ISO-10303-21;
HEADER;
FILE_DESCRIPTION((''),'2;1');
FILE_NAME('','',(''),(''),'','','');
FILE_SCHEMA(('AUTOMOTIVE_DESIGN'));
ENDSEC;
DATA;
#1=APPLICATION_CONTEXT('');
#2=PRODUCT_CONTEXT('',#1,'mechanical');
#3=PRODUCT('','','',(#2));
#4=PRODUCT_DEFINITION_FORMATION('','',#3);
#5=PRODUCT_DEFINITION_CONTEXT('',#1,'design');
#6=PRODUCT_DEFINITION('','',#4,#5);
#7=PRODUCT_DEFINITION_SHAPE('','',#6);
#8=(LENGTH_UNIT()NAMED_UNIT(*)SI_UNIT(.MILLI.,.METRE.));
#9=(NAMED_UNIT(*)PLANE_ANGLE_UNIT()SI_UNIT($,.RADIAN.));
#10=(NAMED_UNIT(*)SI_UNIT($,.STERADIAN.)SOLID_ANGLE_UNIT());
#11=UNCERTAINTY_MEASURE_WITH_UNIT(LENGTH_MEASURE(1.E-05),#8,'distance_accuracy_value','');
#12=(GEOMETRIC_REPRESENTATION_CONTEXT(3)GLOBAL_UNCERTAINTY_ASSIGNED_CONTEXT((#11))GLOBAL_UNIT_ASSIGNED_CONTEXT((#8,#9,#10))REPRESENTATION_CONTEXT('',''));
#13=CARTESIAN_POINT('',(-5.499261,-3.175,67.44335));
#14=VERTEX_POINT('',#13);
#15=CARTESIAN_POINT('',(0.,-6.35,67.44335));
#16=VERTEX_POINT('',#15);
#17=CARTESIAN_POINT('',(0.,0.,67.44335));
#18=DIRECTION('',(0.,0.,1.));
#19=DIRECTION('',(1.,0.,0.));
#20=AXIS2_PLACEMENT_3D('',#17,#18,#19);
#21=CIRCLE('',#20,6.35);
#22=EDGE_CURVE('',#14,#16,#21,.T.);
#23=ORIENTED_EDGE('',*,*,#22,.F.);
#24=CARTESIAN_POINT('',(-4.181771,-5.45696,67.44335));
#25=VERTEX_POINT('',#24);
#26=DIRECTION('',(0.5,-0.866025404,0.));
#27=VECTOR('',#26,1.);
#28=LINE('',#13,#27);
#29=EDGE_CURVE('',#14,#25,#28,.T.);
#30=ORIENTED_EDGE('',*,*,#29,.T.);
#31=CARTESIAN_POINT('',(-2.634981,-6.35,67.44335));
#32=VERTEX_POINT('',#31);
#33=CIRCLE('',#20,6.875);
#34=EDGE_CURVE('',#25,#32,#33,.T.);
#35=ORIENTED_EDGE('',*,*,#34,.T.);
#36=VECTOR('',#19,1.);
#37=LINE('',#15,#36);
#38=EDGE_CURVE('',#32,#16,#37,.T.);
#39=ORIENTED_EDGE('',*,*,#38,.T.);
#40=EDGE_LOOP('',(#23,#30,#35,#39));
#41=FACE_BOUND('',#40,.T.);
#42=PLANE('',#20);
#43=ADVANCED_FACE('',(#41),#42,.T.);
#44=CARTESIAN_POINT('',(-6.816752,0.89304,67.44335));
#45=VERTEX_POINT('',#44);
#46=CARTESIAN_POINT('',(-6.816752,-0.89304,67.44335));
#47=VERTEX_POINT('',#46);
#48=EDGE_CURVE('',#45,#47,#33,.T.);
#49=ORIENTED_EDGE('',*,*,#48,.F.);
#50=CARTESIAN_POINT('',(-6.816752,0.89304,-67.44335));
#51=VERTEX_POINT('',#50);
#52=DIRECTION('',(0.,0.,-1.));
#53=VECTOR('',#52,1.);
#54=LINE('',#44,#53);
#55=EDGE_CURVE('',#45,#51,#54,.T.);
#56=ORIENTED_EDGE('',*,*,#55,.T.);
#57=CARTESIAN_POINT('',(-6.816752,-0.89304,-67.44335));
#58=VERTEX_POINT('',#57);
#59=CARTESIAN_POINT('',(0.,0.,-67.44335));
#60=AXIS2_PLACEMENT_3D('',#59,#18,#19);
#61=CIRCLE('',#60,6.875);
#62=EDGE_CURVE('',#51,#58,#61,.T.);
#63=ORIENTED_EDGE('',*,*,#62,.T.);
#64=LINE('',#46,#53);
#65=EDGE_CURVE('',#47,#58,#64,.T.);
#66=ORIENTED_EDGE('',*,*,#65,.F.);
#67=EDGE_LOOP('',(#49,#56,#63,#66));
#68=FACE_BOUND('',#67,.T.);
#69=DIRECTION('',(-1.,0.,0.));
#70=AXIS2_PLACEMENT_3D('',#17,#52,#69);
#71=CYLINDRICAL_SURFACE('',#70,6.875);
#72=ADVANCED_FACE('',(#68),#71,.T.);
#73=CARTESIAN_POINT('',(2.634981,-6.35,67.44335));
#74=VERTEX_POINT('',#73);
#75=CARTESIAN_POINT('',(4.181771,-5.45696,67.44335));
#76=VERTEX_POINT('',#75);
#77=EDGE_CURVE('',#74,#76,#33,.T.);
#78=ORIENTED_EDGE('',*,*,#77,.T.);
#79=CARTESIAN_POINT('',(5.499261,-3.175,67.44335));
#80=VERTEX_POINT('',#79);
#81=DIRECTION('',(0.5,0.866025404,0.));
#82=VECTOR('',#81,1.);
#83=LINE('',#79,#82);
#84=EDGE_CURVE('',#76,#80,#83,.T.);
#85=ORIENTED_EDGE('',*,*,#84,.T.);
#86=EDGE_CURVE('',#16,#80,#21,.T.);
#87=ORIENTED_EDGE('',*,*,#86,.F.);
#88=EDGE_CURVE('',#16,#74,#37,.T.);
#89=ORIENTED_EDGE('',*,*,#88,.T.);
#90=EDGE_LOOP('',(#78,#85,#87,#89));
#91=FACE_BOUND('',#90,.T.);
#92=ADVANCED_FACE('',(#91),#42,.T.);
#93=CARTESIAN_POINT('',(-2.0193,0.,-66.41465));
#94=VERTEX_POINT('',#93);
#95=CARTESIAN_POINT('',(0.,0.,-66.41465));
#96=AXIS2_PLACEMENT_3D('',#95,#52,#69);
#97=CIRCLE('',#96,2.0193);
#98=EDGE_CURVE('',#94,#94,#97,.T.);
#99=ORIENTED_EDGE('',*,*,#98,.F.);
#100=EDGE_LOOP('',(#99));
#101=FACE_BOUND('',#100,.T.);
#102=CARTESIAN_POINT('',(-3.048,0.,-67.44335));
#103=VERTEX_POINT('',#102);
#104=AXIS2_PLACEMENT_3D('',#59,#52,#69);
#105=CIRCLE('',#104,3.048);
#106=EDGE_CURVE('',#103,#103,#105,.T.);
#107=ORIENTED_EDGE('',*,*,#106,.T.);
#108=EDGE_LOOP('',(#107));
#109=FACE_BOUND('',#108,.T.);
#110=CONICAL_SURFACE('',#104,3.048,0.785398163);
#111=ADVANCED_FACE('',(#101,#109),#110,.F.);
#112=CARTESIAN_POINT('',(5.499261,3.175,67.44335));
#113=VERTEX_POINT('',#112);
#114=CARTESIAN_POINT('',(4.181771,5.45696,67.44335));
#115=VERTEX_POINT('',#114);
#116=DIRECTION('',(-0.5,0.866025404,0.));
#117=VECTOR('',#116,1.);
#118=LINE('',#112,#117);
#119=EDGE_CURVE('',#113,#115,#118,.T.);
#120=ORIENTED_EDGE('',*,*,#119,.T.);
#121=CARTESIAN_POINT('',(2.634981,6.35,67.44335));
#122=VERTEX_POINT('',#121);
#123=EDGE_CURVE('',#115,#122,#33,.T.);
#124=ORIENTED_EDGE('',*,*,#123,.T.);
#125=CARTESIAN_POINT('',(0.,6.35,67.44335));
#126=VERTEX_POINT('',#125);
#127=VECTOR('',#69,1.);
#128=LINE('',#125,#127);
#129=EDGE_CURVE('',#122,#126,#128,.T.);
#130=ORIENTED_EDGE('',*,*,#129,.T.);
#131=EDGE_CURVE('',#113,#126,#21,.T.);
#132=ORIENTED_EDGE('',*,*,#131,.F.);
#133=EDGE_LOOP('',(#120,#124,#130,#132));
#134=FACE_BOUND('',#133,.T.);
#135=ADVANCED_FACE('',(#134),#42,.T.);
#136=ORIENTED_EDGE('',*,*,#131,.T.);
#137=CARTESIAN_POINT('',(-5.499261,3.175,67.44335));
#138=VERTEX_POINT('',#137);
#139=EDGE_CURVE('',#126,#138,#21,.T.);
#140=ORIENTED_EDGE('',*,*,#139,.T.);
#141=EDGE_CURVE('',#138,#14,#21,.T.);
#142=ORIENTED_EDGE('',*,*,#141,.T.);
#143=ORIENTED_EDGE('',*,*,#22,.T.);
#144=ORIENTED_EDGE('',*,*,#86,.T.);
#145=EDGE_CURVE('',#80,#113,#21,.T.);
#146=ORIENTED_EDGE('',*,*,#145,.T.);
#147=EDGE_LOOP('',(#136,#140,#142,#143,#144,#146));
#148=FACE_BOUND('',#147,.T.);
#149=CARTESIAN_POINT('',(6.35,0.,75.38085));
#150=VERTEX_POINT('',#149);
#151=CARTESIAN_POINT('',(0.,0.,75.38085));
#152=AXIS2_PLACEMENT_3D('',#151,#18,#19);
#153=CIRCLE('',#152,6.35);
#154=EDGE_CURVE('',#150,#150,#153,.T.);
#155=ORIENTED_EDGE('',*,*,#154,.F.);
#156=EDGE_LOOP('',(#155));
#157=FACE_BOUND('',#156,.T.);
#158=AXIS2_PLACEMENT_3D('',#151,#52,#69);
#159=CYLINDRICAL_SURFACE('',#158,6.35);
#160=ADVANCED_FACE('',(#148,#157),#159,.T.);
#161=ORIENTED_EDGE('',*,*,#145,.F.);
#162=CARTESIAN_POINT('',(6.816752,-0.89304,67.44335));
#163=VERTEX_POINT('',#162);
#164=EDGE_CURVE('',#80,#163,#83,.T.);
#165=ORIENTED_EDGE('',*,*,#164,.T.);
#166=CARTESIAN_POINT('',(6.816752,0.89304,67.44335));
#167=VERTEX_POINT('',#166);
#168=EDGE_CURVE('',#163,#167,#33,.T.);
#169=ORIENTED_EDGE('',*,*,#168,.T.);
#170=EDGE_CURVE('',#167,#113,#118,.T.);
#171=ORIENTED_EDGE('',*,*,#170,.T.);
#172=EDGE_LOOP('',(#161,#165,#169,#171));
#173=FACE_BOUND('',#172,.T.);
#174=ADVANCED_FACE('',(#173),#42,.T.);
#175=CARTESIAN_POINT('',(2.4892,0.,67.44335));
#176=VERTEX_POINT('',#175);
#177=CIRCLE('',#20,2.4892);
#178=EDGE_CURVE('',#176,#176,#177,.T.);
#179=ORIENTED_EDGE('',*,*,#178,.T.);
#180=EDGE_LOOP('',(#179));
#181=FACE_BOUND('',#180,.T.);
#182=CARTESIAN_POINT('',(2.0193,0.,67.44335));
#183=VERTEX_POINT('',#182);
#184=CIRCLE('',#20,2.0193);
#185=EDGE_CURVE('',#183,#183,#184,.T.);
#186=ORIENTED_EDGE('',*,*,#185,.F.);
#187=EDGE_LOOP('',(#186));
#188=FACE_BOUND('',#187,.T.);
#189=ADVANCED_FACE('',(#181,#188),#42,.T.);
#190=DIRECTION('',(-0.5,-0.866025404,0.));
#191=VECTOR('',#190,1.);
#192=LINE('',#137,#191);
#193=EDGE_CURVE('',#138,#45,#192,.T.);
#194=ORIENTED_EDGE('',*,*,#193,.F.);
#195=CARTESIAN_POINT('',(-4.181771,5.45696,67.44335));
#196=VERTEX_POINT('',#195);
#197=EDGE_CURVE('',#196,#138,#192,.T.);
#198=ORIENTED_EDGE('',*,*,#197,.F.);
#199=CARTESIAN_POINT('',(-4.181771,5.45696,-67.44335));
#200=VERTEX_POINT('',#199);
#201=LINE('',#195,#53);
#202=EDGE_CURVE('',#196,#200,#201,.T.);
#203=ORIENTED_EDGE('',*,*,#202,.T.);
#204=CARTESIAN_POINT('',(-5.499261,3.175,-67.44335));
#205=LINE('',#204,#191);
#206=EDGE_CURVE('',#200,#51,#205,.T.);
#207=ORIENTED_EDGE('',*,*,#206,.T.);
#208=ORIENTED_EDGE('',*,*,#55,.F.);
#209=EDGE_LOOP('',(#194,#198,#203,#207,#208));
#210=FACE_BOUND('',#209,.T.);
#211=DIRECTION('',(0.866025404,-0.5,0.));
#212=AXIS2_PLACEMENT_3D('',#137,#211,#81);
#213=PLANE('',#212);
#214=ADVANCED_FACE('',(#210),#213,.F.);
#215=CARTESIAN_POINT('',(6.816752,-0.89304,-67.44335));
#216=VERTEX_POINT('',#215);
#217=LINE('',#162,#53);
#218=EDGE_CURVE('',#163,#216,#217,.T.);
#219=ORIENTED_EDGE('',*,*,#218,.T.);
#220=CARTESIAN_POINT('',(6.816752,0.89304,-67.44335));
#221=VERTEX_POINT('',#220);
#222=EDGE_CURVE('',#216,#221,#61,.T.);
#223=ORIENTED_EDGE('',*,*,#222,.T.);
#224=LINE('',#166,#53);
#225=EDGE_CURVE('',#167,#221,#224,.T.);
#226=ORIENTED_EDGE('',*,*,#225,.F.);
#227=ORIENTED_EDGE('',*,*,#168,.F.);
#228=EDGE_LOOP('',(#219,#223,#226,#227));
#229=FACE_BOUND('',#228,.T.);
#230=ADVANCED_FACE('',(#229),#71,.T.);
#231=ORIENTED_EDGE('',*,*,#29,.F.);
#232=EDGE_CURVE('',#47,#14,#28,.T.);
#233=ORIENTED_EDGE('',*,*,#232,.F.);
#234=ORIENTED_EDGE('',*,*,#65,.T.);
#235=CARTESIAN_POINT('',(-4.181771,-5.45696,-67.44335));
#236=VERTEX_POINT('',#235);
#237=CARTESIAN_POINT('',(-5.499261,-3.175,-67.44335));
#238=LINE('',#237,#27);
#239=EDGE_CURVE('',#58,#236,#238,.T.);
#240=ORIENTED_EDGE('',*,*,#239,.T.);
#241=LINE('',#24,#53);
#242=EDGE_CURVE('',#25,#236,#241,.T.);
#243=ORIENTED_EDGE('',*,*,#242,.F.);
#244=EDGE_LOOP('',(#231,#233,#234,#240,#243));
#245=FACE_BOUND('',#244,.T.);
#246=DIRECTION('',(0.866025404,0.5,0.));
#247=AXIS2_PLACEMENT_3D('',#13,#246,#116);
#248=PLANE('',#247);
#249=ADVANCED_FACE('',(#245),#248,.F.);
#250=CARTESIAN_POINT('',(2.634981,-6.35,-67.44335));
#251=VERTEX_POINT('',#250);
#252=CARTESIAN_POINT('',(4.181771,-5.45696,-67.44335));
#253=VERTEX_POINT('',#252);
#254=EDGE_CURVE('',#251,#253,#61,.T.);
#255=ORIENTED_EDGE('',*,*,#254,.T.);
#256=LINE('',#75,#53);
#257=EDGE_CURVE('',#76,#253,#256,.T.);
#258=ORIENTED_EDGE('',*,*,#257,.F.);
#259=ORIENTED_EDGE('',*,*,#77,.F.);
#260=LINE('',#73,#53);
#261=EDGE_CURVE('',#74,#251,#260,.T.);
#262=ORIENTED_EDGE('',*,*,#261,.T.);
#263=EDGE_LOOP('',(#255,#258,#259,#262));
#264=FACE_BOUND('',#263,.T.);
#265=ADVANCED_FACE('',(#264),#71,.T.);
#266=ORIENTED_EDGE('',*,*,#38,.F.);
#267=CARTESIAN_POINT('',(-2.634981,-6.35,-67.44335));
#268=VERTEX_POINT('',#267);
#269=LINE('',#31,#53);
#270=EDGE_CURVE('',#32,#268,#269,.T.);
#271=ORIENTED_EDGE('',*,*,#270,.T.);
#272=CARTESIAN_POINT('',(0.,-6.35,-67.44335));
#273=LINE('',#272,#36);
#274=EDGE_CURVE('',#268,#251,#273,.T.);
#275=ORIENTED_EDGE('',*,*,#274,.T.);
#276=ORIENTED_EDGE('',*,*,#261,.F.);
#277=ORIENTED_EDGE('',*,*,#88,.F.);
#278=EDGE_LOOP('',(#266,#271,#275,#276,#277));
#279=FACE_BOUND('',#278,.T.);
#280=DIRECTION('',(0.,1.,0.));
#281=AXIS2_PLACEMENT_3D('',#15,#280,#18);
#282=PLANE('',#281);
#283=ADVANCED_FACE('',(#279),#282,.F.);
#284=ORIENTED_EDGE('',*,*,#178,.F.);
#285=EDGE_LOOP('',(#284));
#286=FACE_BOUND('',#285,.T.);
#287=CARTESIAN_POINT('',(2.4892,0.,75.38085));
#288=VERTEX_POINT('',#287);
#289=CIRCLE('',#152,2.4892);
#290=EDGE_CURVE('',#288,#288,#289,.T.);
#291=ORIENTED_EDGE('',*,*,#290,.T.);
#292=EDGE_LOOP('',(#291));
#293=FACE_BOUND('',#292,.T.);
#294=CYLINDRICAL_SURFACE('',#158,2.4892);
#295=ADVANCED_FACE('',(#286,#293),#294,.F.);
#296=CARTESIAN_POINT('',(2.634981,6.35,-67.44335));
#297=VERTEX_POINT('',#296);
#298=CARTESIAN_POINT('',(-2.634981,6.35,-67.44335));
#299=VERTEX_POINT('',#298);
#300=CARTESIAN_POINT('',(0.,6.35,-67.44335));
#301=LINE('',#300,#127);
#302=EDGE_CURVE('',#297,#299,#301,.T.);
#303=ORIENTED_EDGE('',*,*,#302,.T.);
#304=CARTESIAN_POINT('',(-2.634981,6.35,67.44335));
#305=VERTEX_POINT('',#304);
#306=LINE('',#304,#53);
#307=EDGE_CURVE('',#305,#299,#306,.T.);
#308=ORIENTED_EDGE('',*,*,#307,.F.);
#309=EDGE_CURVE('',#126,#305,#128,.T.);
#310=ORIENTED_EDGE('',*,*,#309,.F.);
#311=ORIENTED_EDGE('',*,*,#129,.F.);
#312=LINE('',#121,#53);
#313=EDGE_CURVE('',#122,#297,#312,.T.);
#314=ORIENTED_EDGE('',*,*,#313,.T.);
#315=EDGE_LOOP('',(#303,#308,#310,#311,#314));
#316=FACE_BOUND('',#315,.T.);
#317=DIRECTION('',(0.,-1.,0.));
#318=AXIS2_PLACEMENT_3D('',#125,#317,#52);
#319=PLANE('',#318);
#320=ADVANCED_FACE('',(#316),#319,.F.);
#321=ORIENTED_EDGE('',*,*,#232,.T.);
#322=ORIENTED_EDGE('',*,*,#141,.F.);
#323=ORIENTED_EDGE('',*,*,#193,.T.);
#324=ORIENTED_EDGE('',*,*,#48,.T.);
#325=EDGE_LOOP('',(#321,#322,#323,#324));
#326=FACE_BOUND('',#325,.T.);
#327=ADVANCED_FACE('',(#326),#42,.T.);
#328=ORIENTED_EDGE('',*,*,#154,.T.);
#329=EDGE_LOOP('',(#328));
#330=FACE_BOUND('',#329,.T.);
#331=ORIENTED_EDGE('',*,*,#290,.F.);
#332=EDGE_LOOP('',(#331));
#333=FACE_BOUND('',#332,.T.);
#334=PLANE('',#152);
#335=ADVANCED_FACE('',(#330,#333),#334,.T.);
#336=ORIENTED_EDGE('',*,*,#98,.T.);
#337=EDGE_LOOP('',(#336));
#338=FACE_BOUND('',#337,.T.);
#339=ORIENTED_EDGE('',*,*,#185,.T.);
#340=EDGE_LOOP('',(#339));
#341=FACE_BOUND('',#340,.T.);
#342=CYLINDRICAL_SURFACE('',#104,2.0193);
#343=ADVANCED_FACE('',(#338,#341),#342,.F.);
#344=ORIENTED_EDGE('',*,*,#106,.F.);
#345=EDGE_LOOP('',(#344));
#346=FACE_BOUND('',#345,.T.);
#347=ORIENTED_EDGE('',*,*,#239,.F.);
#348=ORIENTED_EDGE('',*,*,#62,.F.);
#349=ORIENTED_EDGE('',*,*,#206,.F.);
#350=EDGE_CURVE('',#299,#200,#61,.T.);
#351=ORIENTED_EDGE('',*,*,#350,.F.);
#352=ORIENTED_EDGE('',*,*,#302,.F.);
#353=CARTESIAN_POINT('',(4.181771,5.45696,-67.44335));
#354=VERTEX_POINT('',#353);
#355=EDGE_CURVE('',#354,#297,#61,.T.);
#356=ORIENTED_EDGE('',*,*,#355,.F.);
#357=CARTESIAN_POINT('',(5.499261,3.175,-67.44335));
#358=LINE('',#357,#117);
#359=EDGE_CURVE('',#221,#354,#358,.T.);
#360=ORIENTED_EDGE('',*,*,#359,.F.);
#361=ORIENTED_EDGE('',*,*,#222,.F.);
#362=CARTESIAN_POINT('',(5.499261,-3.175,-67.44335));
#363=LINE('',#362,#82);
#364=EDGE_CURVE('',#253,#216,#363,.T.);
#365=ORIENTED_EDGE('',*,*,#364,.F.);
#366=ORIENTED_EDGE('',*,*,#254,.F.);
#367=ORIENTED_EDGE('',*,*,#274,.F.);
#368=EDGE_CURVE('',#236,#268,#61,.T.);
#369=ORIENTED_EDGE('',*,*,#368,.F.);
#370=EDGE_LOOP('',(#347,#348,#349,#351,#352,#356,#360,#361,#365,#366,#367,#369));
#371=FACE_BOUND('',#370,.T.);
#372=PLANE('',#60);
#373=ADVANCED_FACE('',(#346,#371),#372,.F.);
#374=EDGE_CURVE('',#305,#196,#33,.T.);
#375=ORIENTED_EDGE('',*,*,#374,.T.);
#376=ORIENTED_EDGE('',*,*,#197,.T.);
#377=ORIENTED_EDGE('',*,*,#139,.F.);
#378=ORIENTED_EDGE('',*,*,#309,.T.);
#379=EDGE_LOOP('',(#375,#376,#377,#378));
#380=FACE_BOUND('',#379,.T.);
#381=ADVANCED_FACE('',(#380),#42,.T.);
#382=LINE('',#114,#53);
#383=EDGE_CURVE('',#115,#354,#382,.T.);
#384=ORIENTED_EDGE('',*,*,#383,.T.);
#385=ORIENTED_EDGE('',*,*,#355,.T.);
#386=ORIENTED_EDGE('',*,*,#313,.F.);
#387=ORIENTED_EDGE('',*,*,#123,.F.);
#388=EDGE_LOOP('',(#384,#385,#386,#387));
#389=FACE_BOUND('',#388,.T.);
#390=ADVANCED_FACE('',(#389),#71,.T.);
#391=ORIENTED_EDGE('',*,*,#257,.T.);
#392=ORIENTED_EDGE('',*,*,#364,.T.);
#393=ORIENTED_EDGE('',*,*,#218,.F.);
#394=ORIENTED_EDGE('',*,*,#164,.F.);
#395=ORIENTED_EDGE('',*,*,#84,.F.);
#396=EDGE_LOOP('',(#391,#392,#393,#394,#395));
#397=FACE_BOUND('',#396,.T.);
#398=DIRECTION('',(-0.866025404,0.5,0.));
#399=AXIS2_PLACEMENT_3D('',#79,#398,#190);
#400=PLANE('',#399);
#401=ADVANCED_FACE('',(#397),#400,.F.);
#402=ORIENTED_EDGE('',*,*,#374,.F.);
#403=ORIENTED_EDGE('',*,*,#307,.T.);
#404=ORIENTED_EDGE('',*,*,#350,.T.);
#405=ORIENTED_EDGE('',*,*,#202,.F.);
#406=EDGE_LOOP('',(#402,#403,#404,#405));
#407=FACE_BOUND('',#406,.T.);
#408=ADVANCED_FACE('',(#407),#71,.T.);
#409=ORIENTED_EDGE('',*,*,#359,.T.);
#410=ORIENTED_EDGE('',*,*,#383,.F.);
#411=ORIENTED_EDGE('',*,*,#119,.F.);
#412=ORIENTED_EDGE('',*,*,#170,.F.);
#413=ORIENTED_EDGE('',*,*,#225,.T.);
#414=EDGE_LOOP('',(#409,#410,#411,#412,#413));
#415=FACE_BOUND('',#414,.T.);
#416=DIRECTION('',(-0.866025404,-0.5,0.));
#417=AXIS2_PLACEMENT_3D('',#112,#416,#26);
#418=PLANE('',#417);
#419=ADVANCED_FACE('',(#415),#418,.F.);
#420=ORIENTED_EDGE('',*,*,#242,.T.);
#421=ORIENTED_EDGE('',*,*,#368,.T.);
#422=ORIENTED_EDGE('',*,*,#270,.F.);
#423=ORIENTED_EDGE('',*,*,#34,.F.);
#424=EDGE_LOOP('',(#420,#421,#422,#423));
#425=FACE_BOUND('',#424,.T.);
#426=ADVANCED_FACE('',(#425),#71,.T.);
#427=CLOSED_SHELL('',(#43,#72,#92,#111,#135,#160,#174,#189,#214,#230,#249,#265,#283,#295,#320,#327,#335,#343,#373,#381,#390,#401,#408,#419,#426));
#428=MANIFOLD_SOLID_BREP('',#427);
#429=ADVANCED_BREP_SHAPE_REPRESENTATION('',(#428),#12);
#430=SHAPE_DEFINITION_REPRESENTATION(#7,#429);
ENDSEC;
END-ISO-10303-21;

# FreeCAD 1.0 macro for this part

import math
import FreeCAD as App
import Part
import Sketcher

V = App.Vector
Q = App.Units.Quantity

doc = App.newDocument("Part")
body = doc.addObject("PartDesign::Body", "Body")

# Sketch on XY plane
sketch1 = doc.addObject("Sketcher::SketchObject", "Sketch")
body.addObject(sketch1)
sketch1.AttachmentSupport = (doc.XY_Plane, [""])
sketch1.MapMode = "FlatFace"
sketch1.addGeometry(Part.ArcOfCircle(Part.Circle(V(0, 0, 0), V(0, 0, 1), 6.9), math.radians(52.54), math.radians(67.46)), False)
sketch1.addGeometry(Part.LineSegment(V(2.6, 6.3, 0), V(-2.6, 6.3, 0)), False)
sketch1.addGeometry(Part.ArcOfCircle(Part.Circle(V(0, 0, 0), V(0, 0, 1), 6.9), math.radians(112.54), math.radians(127.46)), False)
sketch1.addGeometry(Part.LineSegment(V(-4.2, 5.5, 0), V(-6.8, 0.9, 0)), False)
sketch1.addGeometry(Part.ArcOfCircle(Part.Circle(V(0, 0, 0), V(0, 0, 1), 6.9), math.radians(172.54), math.radians(187.46)), False)
sketch1.addGeometry(Part.LineSegment(V(-6.8, -0.9, 0), V(-4.2, -5.5, 0)), False)
sketch1.addGeometry(Part.ArcOfCircle(Part.Circle(V(0, 0, 0), V(0, 0, 1), 6.9), math.radians(-127.46), math.radians(-112.54)), False)
sketch1.addGeometry(Part.LineSegment(V(-2.6, -6.3, 0), V(2.6, -6.3, 0)), False)
sketch1.addGeometry(Part.ArcOfCircle(Part.Circle(V(0, 0, 0), V(0, 0, 1), 6.9), math.radians(-67.46), math.radians(-52.54)), False)
sketch1.addGeometry(Part.LineSegment(V(4.2, -5.5, 0), V(6.8, -0.9, 0)), False)
sketch1.addGeometry(Part.ArcOfCircle(Part.Circle(V(0, 0, 0), V(0, 0, 1), 6.9), math.radians(-7.46), math.radians(0)), False)
sketch1.addGeometry(Part.ArcOfCircle(Part.Circle(V(0, 0, 0), V(0, 0, 1), 6.9), math.radians(0), math.radians(7.46)), False)
sketch1.addGeometry(Part.LineSegment(V(6.8, 0.9, 0), V(4.2, 5.5, 0)), False)
sketch1.addConstraint(Sketcher.Constraint("Coincident", 0, 2, 1, 1))
sketch1.addConstraint(Sketcher.Constraint("Coincident", 1, 2, 2, 1))
sketch1.addConstraint(Sketcher.Constraint("Coincident", 2, 2, 3, 1))
sketch1.addConstraint(Sketcher.Constraint("Coincident", 3, 2, 4, 1))
sketch1.addConstraint(Sketcher.Constraint("Coincident", 4, 2, 5, 1))
sketch1.addConstraint(Sketcher.Constraint("Coincident", 5, 2, 6, 1))
sketch1.addConstraint(Sketcher.Constraint("Coincident", 6, 2, 7, 1))
sketch1.addConstraint(Sketcher.Constraint("Coincident", 7, 2, 8, 1))
sketch1.addConstraint(Sketcher.Constraint("Coincident", 8, 2, 9, 1))
sketch1.addConstraint(Sketcher.Constraint("Coincident", 9, 2, 10, 1))
sketch1.addConstraint(Sketcher.Constraint("Tangent", 10, 2, 11, 1))
sketch1.addConstraint(Sketcher.Constraint("Coincident", 11, 2, 12, 1))
sketch1.addConstraint(Sketcher.Constraint("Coincident", 12, 2, 0, 1))
sketch1.addConstraint(Sketcher.Constraint("Horizontal", 1))
sketch1.addConstraint(Sketcher.Constraint("Horizontal", 7))
sketch1.addConstraint(Sketcher.Constraint("Coincident", 0, 3, -1, 1))
sketch1.addConstraint(Sketcher.Constraint("Coincident", 2, 3, -1, 1))
sketch1.addConstraint(Sketcher.Constraint("Coincident", 4, 3, -1, 1))
sketch1.addConstraint(Sketcher.Constraint("Coincident", 6, 3, -1, 1))
sketch1.addConstraint(Sketcher.Constraint("Coincident", 8, 3, -1, 1))
sketch1.addConstraint(Sketcher.Constraint("Coincident", 10, 3, -1, 1))
sketch1.addConstraint(Sketcher.Constraint("Equal", 0, 2))
sketch1.addConstraint(Sketcher.Constraint("Equal", 2, 4))
sketch1.addConstraint(Sketcher.Constraint("Equal", 4, 6))
sketch1.addConstraint(Sketcher.Constraint("Equal", 6, 8))
sketch1.addConstraint(Sketcher.Constraint("Equal", 8, 10))
sketch1.addConstraint(Sketcher.Constraint("Equal", 10, 11))
sketch1.addConstraint(Sketcher.Constraint("PointOnObject", 10, 2, -1))
sketch1.addConstraint(Sketcher.Constraint("Parallel", 3, 9))
sketch1.addConstraint(Sketcher.Constraint("Parallel", 5, 12))
sketch1.addConstraint(Sketcher.Constraint("Horizontal", 5, 2, 8, 2))
sketch1.addConstraint(Sketcher.Constraint("Horizontal", 4, 2, 9, 2))
sketch1.addConstraint(Sketcher.Constraint("Horizontal", 3, 2, 11, 2))
sketch1.addConstraint(Sketcher.Constraint("Vertical", 3, 2, 4, 2))
sketch1.addConstraint(Sketcher.Constraint("Vertical", 1, 2, 6, 2))
sketch1.addConstraint(Sketcher.Constraint("Angle", 3, Q("-120 deg")))
sketch1.addConstraint(Sketcher.Constraint("DistanceY", -1, 1, 0, 2, Q("0.25 in")))
sketch1.addConstraint(Sketcher.Constraint("Radius", 0, Q("6.875 mm")))
sketch1.addConstraint(Sketcher.Constraint("Distance", 3, Q("5.269962 mm")))
pad1 = doc.addObject("PartDesign::Pad", "Pad")
body.addObject(pad1)
pad1.Profile = sketch1
pad1.Length = Q("5.3105 in")
pad1.Midplane = True

# Sketch on XY plane
sketch2 = doc.addObject("Sketcher::SketchObject", "Sketch001")
body.addObject(sketch2)
sketch2.AttachmentSupport = (doc.XY_Plane, [""])
sketch2.MapMode = "FlatFace"
sketch2.AttachmentOffset = App.Placement(V(0, 0, 67.44335), App.Rotation())
sketch2.addGeometry(Part.Circle(V(0, 0, 0), V(0, 0, 1), 6.3), False)
sketch2.addGeometry(Part.Circle(V(0, 0, 0), V(0, 0, 1), 2.5), False)
sketch2.addConstraint(Sketcher.Constraint("Coincident", 0, 3, -1, 1))
sketch2.addConstraint(Sketcher.Constraint("Coincident", 1, 3, -1, 1))
sketch2.addConstraint(Sketcher.Constraint("Diameter", 0, Q("0.5 in")))
sketch2.addConstraint(Sketcher.Constraint("Diameter", 1, Q("0.196 in")))
pad2 = doc.addObject("PartDesign::Pad", "Pad001")
body.addObject(pad2)
pad2.Profile = sketch2
pad2.Length = Q("0.3125 in")

# Sketch on XY plane
sketch3 = doc.addObject("Sketcher::SketchObject", "Sketch002")
body.addObject(sketch3)
sketch3.AttachmentSupport = (doc.XY_Plane, [""])
sketch3.MapMode = "FlatFace"
sketch3.AttachmentOffset = App.Placement(V(0, 0, -67.44335), App.Rotation())
sketch3.addGeometry(Part.Circle(V(0, 0, 0), V(0, 0, 1), 2), False)
sketch3.addConstraint(Sketcher.Constraint("Coincident", 0, 3, -1, 1))
sketch3.addConstraint(Sketcher.Constraint("Diameter", 0, Q("0.159 in")))
doc.recompute()
hole = doc.addObject("PartDesign::Hole", "Hole")
body.addObject(hole)
hole.Profile = sketch3
hole.ThreadType = "None"
hole.Diameter = Q("0.159 in")
hole.DepthType = "ThroughAll"
hole.HoleCutType = "Countersink"
hole.HoleCutDiameter = Q("0.24 in")
hole.HoleCutCountersinkAngle = 90
hole.Reversed = True

doc.recompute()
